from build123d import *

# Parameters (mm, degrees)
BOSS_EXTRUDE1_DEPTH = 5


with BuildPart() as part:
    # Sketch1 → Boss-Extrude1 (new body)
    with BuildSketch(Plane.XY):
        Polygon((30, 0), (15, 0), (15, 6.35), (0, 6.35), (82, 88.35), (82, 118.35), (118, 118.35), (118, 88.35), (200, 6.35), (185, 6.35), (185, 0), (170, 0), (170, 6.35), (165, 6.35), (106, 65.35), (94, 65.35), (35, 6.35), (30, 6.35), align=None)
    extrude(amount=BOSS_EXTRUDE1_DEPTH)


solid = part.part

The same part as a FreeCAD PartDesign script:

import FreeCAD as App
import Part
import Sketcher
from FreeCAD import Vector
Q = App.Units.Quantity


def add_polygon(sketch, points):
    """Adds a closed chain of lines whose ends are joined by coincident constraints."""
    first, n = sketch.GeometryCount, len(points)
    for a, b in zip(points, points[1:] + points[:1]):
        sketch.addGeometry(Part.LineSegment(App.Vector(*a, 0), App.Vector(*b, 0)), False)
    for i in range(n):
        sketch.addConstraint(Sketcher.Constraint("Coincident", first + i, 2, first + (i + 1) % n, 1))

doc = App.newDocument("Part")
body = doc.addObject("PartDesign::Body", "Body")

# Sketch on XY plane
sketch1 = doc.addObject("Sketcher::SketchObject", "Sketch")
body.addObject(sketch1)
sketch1.AttachmentSupport = (doc.XY_Plane, [""])
sketch1.MapMode = "FlatFace"
add_polygon(sketch1, [(15, 0), (30, 0), (30, 6), (35, 6), (94, 65), (106, 65), (165, 6), (170, 6), (170, 0), (185, 0), (185, 6), (200, 6), (118, 88), (118, 118), (82, 118), (82, 88), (0, 6), (15, 6)])  # lines 0-17
sketch1.addConstraint([
    Sketcher.Constraint("Horizontal", 0),
    Sketcher.Constraint("Vertical", 1),
    Sketcher.Constraint("Horizontal", 2),
    Sketcher.Constraint("Horizontal", 4),
    Sketcher.Constraint("Horizontal", 6),
    Sketcher.Constraint("Vertical", 7),
    Sketcher.Constraint("Horizontal", 8),
    Sketcher.Constraint("Vertical", 9),
    Sketcher.Constraint("Horizontal", 10),
    Sketcher.Constraint("Vertical", 12),
    Sketcher.Constraint("Horizontal", 13),
    Sketcher.Constraint("Vertical", 14),
    Sketcher.Constraint("Horizontal", 16),
    Sketcher.Constraint("Vertical", 17),
    Sketcher.Constraint("PointOnObject", 0, 2, -1),
    Sketcher.Constraint("PointOnObject", 7, 2, -1),
    Sketcher.Constraint("PointOnObject", 15, 2, -2),
    Sketcher.Constraint("Perpendicular", 3, 5),
    Sketcher.Constraint("Parallel", 5, 11),
    Sketcher.Constraint("Perpendicular", 11, 15),
    Sketcher.Constraint("Horizontal", 2, 2, 5, 2),
    Sketcher.Constraint("Horizontal", 6, 2, 9, 2),
    Sketcher.Constraint("Horizontal", 11, 2, 14, 2),
    Sketcher.Constraint("Horizontal", 10, 2, 15, 2),
    Sketcher.Constraint("Equal", 2, 6),
    Sketcher.Constraint("Equal", 0, 8),
    Sketcher.Constraint("Equal", 8, 10),
    Sketcher.Constraint("Equal", 10, 16),
    Sketcher.Constraint("Equal", 3, 5),
    Sketcher.Constraint("DistanceX", 0, 1, 0, 2, Q("15 mm")),
    Sketcher.Constraint("DistanceX", 2, 1, 2, 2, Q("5 mm")),
    Sketcher.Constraint("DistanceX", 4, 1, 4, 2, Q("12 mm")),
    Sketcher.Constraint("DistanceX", 13, 2, 13, 1, Q("36 mm")),
    Sketcher.Constraint("DistanceY", 12, 1, 12, 2, Q("30 mm")),
    Sketcher.Constraint("DistanceX", -1, 1, 3, 2, Q("94 mm")),
    Sketcher.Constraint("DistanceY", 1, 1, 1, 2, Q("6.35 mm")),
])
pad1 = doc.addObject("PartDesign::Pad", "Pad")
body.addObject(pad1)
pad1.Profile = sketch1
pad1.Length = 5

doc.recompute()
